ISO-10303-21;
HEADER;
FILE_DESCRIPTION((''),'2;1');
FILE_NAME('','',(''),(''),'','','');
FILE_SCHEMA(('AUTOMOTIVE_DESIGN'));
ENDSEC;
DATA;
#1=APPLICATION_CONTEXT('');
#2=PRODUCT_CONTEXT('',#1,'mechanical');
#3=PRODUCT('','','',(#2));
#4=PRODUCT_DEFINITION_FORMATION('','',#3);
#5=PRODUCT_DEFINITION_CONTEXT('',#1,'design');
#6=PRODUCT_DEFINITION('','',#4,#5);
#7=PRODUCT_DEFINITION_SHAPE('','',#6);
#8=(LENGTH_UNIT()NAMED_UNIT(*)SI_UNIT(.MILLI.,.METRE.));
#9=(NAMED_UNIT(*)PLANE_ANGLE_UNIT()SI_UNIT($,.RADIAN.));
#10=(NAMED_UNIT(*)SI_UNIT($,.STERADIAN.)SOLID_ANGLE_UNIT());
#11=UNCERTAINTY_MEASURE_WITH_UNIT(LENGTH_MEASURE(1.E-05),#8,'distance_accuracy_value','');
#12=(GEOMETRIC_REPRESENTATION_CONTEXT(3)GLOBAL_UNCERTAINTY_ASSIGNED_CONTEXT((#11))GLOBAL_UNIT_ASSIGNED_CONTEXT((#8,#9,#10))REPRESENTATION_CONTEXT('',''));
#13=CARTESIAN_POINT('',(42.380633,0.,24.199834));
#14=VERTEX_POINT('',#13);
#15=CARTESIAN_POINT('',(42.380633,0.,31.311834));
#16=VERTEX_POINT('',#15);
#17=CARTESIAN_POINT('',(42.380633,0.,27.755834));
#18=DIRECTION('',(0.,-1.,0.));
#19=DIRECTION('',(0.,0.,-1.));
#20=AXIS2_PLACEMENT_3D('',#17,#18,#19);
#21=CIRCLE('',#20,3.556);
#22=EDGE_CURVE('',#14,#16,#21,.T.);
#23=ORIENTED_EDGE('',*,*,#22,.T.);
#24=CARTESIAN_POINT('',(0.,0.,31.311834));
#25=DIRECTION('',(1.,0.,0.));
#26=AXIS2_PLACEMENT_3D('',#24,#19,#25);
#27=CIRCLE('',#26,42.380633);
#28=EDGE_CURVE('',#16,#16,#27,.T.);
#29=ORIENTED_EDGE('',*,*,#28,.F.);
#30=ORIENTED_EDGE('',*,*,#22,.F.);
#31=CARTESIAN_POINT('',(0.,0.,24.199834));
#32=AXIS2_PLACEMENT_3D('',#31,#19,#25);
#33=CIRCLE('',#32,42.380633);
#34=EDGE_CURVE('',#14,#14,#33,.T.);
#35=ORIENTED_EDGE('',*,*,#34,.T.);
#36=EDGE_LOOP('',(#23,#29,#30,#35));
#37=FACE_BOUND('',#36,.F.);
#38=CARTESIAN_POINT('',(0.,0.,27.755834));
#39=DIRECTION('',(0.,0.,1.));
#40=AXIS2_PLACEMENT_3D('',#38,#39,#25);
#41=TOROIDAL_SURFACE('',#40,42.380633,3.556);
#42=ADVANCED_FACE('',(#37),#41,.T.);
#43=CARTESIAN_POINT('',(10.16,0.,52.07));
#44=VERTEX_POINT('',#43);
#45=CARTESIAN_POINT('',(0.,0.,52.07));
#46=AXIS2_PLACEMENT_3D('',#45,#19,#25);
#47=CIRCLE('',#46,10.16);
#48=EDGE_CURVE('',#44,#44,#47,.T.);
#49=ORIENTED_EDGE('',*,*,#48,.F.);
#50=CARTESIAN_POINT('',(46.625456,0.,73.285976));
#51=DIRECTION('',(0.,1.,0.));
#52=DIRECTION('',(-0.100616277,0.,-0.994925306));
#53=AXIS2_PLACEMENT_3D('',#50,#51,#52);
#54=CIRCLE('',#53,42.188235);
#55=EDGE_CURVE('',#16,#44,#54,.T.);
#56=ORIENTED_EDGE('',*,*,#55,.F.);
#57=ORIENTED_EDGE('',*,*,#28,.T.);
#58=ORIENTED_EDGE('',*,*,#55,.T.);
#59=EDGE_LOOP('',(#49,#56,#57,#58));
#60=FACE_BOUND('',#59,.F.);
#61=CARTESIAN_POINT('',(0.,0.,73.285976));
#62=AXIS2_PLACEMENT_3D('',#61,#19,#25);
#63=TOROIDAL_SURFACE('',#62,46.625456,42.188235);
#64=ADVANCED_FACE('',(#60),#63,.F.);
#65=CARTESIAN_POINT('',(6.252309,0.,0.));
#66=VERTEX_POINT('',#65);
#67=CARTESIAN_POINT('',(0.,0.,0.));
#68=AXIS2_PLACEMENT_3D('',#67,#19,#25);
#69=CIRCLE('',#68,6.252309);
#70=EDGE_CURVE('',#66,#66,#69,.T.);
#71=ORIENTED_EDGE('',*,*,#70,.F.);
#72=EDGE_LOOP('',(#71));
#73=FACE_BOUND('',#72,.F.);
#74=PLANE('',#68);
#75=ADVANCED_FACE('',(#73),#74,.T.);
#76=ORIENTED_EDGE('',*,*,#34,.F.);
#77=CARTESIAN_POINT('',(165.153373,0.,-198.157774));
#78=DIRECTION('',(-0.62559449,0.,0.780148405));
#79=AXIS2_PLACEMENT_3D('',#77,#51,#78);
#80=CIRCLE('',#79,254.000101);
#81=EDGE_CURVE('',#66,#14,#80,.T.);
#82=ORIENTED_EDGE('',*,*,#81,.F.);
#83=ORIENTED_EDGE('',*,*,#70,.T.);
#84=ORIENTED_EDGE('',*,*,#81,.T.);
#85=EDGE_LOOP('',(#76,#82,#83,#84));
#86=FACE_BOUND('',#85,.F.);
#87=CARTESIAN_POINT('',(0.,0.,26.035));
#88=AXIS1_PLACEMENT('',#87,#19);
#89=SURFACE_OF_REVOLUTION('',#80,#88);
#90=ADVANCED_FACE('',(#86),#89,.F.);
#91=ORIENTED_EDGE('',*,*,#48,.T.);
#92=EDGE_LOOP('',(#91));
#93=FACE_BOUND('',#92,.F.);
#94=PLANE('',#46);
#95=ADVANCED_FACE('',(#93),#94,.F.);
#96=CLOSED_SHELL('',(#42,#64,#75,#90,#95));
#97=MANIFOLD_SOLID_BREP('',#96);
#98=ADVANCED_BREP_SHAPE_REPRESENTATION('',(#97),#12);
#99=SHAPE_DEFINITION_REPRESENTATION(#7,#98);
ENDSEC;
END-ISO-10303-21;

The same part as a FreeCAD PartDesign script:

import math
import FreeCAD as App
import Part
import Sketcher

V = App.Vector
Q = App.Units.Quantity

doc = App.newDocument("Part")
params = doc.addObject("Spreadsheet::Sheet", "Params")
for row, (alias, value) in enumerate([
    ("sketch1_radius", "0.14 in"),
    ("sketch1_width", "0.4 in"),
    ("sketch1_height", "2.05 in"),
    ("revolution_angle", "360 deg"),
], start=1):
    params.set(f"A{row}", alias)
    params.set(f"B{row}", "=" + value)
    params.setAlias(f"B{row}", alias)

body = doc.addObject("PartDesign::Body", "Body")

# Sketch on XZ plane
sketch1 = body.newObject("Sketcher::SketchObject", "Sketch")
sketch1.AttachmentSupport = (doc.getObject("XZ_Plane"), [""])
sketch1.MapMode = "FlatFace"
sketch1.addGeometry(Part.LineSegment(V(0, 52.1, 0), V(0, 0, 0)), False)
sketch1.addGeometry(Part.LineSegment(V(0, 0, 0), V(6.3, 0, 0)), False)
sketch1.addGeometry(Part.ArcOfCircle(Part.Circle(V(165.2, -198.2, 0), V(0, 0, 1), 254), math.radians(118.9), math.radians(128.73)), False)
sketch1.addGeometry(Part.ArcOfCircle(Part.Circle(V(42.4, 27.8, 0), V(0, 0, 1), 3.6), math.radians(-90), math.radians(90)), False)
sketch1.addGeometry(Part.ArcOfCircle(Part.Circle(V(46.6, 73.3, 0), V(0, 0, 1), 42.2), math.radians(-150), math.radians(-96)), False)
sketch1.addGeometry(Part.LineSegment(V(10.2, 52.1, 0), V(0, 52.1, 0)), False)
sketch1.addConstraint(Sketcher.Constraint("Coincident", 0, 2, 1, 1))
sketch1.addConstraint(Sketcher.Constraint("Coincident", 1, 2, 2, 2))
sketch1.addConstraint(Sketcher.Constraint("Coincident", 2, 1, 3, 1))
sketch1.addConstraint(Sketcher.Constraint("Coincident", 3, 2, 4, 2))
sketch1.addConstraint(Sketcher.Constraint("Coincident", 4, 1, 5, 1))
sketch1.addConstraint(Sketcher.Constraint("Coincident", 5, 2, 0, 1))
sketch1.addConstraint(Sketcher.Constraint("Vertical", 0))
sketch1.addConstraint(Sketcher.Constraint("Horizontal", 1))
sketch1.addConstraint(Sketcher.Constraint("Horizontal", 5))
sketch1.addConstraint(Sketcher.Constraint("Coincident", 0, 2, -1, 1))
sketch1.addConstraint(Sketcher.Constraint("Vertical", 3, 3, 2, 1))
sketch1.addConstraint(Sketcher.Constraint("Vertical", 2, 1, 3, 2))
sketch1.addConstraint(Sketcher.Constraint("Radius", 3, Q("0.14 in")))
sketch1.addConstraint(Sketcher.Constraint("DistanceX", 5, 2, 5, 1, Q("0.4 in")))
sketch1.addConstraint(Sketcher.Constraint("DistanceY", 0, 2, 0, 1, Q("2.05 in")))
sketch1.addConstraint(Sketcher.Constraint("Radius", 2, Q("254.000101 mm")))
sketch1.addConstraint(Sketcher.Constraint("Radius", 4, Q("42.188235 mm")))
sketch1.addConstraint(Sketcher.Constraint("DistanceX", 1, 1, 1, 2, Q("6.252309 mm")))
sketch1.addConstraint(Sketcher.Constraint("DistanceX", 3, 3, 2, 3, Q("122.77274 mm")))
sketch1.addConstraint(Sketcher.Constraint("DistanceY", 2, 3, 4, 3, Q("271.44375 mm")))
sketch1.setExpression("Constraints[12]", "Params.sketch1_radius")
sketch1.setExpression("Constraints[13]", "Params.sketch1_width")
sketch1.setExpression("Constraints[14]", "Params.sketch1_height")
revolution = body.newObject("PartDesign::Revolution", "Revolution")
revolution.Profile = sketch1
revolution.ReferenceAxis = (sketch1, ["V_Axis"])
revolution.setExpression("Angle", "Params.revolution_angle")

doc.recompute()
